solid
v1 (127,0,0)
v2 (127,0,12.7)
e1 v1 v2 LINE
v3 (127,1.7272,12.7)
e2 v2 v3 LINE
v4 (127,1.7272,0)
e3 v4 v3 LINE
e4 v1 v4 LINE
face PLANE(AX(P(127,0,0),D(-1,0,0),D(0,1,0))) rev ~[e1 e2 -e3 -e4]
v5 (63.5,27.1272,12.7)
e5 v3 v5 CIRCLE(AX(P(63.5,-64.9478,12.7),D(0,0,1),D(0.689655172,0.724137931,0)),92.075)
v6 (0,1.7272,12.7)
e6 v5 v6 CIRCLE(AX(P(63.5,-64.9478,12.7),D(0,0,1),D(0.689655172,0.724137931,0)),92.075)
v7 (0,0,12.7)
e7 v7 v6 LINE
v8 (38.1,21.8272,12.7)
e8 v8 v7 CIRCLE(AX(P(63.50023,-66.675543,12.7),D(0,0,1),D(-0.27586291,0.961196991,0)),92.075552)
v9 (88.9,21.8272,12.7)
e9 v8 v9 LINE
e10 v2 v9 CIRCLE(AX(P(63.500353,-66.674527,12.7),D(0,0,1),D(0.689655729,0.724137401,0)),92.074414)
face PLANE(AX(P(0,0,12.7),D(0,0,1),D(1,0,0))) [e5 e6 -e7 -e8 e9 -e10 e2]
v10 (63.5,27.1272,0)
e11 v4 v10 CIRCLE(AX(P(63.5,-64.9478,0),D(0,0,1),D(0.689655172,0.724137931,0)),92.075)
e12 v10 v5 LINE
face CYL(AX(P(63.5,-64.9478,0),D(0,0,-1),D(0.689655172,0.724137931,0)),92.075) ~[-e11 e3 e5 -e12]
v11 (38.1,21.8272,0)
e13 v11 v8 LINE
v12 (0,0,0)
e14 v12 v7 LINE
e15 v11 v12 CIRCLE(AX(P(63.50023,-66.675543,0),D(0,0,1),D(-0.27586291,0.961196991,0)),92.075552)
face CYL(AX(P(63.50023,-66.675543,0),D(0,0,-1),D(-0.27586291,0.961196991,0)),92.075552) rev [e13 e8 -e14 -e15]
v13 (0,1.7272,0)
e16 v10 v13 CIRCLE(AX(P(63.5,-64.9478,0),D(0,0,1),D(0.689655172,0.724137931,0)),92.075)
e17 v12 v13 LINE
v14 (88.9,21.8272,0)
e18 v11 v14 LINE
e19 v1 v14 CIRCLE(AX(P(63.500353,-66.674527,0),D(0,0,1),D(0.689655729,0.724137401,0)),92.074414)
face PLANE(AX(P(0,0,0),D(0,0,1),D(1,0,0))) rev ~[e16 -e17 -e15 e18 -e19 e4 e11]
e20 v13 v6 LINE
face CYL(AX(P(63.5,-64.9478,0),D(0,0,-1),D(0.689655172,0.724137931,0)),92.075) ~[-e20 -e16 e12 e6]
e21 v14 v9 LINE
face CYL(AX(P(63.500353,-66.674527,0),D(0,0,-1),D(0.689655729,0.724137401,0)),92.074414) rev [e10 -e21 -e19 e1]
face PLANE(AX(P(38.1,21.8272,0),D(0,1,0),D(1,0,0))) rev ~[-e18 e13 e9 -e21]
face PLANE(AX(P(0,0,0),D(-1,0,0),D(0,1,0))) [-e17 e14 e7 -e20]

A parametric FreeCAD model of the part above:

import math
import FreeCAD as App
import Part
import Sketcher
from FreeCAD import Vector
Q = App.Units.Quantity

doc = App.newDocument("Part")
body = doc.addObject("PartDesign::Body", "Body")

sketch1 = body.newObject("Sketcher::SketchObject", "Sketch")
sketch1.AttachmentSupport = (doc.getObject("XY_Plane"), [""])
sketch1.MapMode = "FlatFace"
sketch1.addGeometry(Part.LineSegment(Vector(0, 1.7, 0), Vector(0, 0, 0)), False)
sketch1.addGeometry(Part.ArcOfCircle(Part.Circle(Vector(63.5, -66.7, 0), Vector(0, 0, 1), 92.1), math.radians(106), math.radians(134)), False)
sketch1.addGeometry(Part.LineSegment(Vector(38.1, 21.8, 0), Vector(88.9, 21.8, 0)), False)
sketch1.addGeometry(Part.ArcOfCircle(Part.Circle(Vector(63.5, -66.7, 0), Vector(0, 0, 1), 92.1), math.radians(46), math.radians(74)), False)
sketch1.addGeometry(Part.LineSegment(Vector(127, 0, 0), Vector(127, 1.7, 0)), False)
sketch1.addGeometry(Part.ArcOfCircle(Part.Circle(Vector(63.5, -64.9, 0), Vector(0, 0, 1), 92.1), math.radians(46), math.radians(134)), False)
sketch1.addConstraint(Sketcher.Constraint("Coincident", 0, 2, 1, 2))
sketch1.addConstraint(Sketcher.Constraint("Coincident", 1, 1, 2, 1))
sketch1.addConstraint(Sketcher.Constraint("Coincident", 2, 2, 3, 2))
sketch1.addConstraint(Sketcher.Constraint("Coincident", 3, 1, 4, 1))
sketch1.addConstraint(Sketcher.Constraint("Coincident", 4, 2, 5, 1))
sketch1.addConstraint(Sketcher.Constraint("Coincident", 5, 2, 0, 1))
sketch1.addConstraint(Sketcher.Constraint("Vertical", 0))
sketch1.addConstraint(Sketcher.Constraint("Horizontal", 2))
sketch1.addConstraint(Sketcher.Constraint("Vertical", 4))
sketch1.addConstraint(Sketcher.Constraint("Coincident", 0, 2, -1, 1))
sketch1.addConstraint(Sketcher.Constraint("Coincident", 3, 3, 1, 3))
sketch1.addConstraint(Sketcher.Constraint("Equal", 1, 3))
sketch1.addConstraint(Sketcher.Constraint("Equal", 3, 5))
sketch1.addConstraint(Sketcher.Constraint("PointOnObject", 3, 1, -1))
sketch1.addConstraint(Sketcher.Constraint("Horizontal", 4, 2, 5, 2))
sketch1.addConstraint(Sketcher.Constraint("DistanceX", 2, 1, 2, 2, Q("2 in")))
sketch1.addConstraint(Sketcher.Constraint("DistanceX", -1, 1, 3, 1, Q("5 in")))
sketch1.addConstraint(Sketcher.Constraint("DistanceY", 0, 2, 0, 1, Q("0.068 in")))
sketch1.addConstraint(Sketcher.Constraint("Radius", 1, Q("3.625 in")))
pad1 = body.newObject("PartDesign::Pad", "Pad")
pad1.Profile = sketch1
pad1.Length = Q("0.5 in")

doc.recompute()
